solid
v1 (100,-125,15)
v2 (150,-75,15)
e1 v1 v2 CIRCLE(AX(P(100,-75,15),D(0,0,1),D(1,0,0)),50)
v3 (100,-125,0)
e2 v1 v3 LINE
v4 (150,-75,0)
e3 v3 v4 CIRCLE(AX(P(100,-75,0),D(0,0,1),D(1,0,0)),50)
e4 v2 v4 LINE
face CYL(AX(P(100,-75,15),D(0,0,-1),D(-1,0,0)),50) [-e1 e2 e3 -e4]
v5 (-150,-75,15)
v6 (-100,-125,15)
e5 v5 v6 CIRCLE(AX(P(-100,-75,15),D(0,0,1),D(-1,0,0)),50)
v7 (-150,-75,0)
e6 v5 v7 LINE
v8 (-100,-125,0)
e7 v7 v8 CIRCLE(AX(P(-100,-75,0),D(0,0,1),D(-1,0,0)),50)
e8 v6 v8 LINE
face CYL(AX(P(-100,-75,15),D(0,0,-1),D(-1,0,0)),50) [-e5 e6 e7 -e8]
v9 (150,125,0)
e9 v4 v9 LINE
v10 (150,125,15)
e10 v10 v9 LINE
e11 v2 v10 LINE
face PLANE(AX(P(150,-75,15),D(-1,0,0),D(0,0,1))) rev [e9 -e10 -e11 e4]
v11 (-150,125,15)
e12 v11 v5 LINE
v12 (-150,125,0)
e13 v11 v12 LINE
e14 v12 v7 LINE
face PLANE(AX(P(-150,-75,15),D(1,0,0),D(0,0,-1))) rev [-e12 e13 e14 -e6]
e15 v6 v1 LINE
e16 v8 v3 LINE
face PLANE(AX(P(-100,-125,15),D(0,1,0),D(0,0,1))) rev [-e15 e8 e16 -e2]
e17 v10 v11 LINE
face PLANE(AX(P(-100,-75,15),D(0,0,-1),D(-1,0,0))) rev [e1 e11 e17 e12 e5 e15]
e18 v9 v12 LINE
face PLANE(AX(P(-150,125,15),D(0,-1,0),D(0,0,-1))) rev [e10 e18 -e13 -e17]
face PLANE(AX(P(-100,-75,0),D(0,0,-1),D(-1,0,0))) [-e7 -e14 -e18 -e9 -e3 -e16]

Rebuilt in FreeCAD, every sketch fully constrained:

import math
import FreeCAD as App
import Part
import Sketcher

V = App.Vector

doc = App.newDocument("Part")
params = doc.addObject("Spreadsheet::Sheet", "Params")
for row, (alias, value) in enumerate([
    ("sketch1_radius", "50 mm"),
    ("sketch1_width", "200 mm"),
    ("pad1_length", "15 mm"),
], start=1):
    params.set(f"A{row}", alias)
    params.set(f"B{row}", "=" + value)
    params.setAlias(f"B{row}", alias)

body = doc.addObject("PartDesign::Body", "Body")

# Sketch on XY plane
sketch1 = body.newObject("Sketcher::SketchObject", "Sketch")
sketch1.AttachmentSupport = (doc.getObject("XY_Plane"), [""])
sketch1.MapMode = "FlatFace"
sketch1.addGeometry([
    Part.LineSegment(V(-100, -125, 0), V(100, -125, 0)),  # 0
    Part.ArcOfCircle(Part.Circle(V(100, -75, 0), V(0, 0, 1), 50), math.radians(-90), math.radians(0)),  # 1
    Part.LineSegment(V(150, -75, 0), V(150, 125, 0)),  # 2
    Part.LineSegment(V(150, 125, 0), V(-150, 125, 0)),  # 3
    Part.LineSegment(V(-150, 125, 0), V(-150, -75, 0)),  # 4
    Part.ArcOfCircle(Part.Circle(V(-100, -75, 0), V(0, 0, 1), 50), math.radians(-180), math.radians(-90)),  # 5
], False)
sketch1.addConstraint([
    Sketcher.Constraint("Tangent", 0, 2, 1, 1),
    Sketcher.Constraint("Tangent", 1, 2, 2, 1),
    Sketcher.Constraint("Coincident", 2, 2, 3, 1),
    Sketcher.Constraint("Coincident", 3, 2, 4, 1),
    Sketcher.Constraint("Tangent", 4, 2, 5, 1),
    Sketcher.Constraint("Tangent", 5, 2, 0, 1),
    Sketcher.Constraint("Horizontal", 0),
    Sketcher.Constraint("Vertical", 2),
    Sketcher.Constraint("Horizontal", 3),
    Sketcher.Constraint("Vertical", 4),
    Sketcher.Constraint("Equal", 1, 5),
    Sketcher.Constraint("Equal", 0, 2),
    Sketcher.Constraint("Radius", 1, 50.0),
    Sketcher.Constraint("DistanceX", 0, 1, 0, 2, 200.0),
    Sketcher.Constraint("DistanceX", -1, 1, 1, 3, 100.0),
    Sketcher.Constraint("DistanceY", 1, 3, -1, 1, 75.0),
])
sketch1.setExpression("Constraints[12]", "Params.sketch1_radius")
sketch1.setExpression("Constraints[13]", "Params.sketch1_width")
pad1 = body.newObject("PartDesign::Pad", "Pad")
pad1.Profile = sketch1
pad1.setExpression("Length", "Params.pad1_length")

doc.recompute()
